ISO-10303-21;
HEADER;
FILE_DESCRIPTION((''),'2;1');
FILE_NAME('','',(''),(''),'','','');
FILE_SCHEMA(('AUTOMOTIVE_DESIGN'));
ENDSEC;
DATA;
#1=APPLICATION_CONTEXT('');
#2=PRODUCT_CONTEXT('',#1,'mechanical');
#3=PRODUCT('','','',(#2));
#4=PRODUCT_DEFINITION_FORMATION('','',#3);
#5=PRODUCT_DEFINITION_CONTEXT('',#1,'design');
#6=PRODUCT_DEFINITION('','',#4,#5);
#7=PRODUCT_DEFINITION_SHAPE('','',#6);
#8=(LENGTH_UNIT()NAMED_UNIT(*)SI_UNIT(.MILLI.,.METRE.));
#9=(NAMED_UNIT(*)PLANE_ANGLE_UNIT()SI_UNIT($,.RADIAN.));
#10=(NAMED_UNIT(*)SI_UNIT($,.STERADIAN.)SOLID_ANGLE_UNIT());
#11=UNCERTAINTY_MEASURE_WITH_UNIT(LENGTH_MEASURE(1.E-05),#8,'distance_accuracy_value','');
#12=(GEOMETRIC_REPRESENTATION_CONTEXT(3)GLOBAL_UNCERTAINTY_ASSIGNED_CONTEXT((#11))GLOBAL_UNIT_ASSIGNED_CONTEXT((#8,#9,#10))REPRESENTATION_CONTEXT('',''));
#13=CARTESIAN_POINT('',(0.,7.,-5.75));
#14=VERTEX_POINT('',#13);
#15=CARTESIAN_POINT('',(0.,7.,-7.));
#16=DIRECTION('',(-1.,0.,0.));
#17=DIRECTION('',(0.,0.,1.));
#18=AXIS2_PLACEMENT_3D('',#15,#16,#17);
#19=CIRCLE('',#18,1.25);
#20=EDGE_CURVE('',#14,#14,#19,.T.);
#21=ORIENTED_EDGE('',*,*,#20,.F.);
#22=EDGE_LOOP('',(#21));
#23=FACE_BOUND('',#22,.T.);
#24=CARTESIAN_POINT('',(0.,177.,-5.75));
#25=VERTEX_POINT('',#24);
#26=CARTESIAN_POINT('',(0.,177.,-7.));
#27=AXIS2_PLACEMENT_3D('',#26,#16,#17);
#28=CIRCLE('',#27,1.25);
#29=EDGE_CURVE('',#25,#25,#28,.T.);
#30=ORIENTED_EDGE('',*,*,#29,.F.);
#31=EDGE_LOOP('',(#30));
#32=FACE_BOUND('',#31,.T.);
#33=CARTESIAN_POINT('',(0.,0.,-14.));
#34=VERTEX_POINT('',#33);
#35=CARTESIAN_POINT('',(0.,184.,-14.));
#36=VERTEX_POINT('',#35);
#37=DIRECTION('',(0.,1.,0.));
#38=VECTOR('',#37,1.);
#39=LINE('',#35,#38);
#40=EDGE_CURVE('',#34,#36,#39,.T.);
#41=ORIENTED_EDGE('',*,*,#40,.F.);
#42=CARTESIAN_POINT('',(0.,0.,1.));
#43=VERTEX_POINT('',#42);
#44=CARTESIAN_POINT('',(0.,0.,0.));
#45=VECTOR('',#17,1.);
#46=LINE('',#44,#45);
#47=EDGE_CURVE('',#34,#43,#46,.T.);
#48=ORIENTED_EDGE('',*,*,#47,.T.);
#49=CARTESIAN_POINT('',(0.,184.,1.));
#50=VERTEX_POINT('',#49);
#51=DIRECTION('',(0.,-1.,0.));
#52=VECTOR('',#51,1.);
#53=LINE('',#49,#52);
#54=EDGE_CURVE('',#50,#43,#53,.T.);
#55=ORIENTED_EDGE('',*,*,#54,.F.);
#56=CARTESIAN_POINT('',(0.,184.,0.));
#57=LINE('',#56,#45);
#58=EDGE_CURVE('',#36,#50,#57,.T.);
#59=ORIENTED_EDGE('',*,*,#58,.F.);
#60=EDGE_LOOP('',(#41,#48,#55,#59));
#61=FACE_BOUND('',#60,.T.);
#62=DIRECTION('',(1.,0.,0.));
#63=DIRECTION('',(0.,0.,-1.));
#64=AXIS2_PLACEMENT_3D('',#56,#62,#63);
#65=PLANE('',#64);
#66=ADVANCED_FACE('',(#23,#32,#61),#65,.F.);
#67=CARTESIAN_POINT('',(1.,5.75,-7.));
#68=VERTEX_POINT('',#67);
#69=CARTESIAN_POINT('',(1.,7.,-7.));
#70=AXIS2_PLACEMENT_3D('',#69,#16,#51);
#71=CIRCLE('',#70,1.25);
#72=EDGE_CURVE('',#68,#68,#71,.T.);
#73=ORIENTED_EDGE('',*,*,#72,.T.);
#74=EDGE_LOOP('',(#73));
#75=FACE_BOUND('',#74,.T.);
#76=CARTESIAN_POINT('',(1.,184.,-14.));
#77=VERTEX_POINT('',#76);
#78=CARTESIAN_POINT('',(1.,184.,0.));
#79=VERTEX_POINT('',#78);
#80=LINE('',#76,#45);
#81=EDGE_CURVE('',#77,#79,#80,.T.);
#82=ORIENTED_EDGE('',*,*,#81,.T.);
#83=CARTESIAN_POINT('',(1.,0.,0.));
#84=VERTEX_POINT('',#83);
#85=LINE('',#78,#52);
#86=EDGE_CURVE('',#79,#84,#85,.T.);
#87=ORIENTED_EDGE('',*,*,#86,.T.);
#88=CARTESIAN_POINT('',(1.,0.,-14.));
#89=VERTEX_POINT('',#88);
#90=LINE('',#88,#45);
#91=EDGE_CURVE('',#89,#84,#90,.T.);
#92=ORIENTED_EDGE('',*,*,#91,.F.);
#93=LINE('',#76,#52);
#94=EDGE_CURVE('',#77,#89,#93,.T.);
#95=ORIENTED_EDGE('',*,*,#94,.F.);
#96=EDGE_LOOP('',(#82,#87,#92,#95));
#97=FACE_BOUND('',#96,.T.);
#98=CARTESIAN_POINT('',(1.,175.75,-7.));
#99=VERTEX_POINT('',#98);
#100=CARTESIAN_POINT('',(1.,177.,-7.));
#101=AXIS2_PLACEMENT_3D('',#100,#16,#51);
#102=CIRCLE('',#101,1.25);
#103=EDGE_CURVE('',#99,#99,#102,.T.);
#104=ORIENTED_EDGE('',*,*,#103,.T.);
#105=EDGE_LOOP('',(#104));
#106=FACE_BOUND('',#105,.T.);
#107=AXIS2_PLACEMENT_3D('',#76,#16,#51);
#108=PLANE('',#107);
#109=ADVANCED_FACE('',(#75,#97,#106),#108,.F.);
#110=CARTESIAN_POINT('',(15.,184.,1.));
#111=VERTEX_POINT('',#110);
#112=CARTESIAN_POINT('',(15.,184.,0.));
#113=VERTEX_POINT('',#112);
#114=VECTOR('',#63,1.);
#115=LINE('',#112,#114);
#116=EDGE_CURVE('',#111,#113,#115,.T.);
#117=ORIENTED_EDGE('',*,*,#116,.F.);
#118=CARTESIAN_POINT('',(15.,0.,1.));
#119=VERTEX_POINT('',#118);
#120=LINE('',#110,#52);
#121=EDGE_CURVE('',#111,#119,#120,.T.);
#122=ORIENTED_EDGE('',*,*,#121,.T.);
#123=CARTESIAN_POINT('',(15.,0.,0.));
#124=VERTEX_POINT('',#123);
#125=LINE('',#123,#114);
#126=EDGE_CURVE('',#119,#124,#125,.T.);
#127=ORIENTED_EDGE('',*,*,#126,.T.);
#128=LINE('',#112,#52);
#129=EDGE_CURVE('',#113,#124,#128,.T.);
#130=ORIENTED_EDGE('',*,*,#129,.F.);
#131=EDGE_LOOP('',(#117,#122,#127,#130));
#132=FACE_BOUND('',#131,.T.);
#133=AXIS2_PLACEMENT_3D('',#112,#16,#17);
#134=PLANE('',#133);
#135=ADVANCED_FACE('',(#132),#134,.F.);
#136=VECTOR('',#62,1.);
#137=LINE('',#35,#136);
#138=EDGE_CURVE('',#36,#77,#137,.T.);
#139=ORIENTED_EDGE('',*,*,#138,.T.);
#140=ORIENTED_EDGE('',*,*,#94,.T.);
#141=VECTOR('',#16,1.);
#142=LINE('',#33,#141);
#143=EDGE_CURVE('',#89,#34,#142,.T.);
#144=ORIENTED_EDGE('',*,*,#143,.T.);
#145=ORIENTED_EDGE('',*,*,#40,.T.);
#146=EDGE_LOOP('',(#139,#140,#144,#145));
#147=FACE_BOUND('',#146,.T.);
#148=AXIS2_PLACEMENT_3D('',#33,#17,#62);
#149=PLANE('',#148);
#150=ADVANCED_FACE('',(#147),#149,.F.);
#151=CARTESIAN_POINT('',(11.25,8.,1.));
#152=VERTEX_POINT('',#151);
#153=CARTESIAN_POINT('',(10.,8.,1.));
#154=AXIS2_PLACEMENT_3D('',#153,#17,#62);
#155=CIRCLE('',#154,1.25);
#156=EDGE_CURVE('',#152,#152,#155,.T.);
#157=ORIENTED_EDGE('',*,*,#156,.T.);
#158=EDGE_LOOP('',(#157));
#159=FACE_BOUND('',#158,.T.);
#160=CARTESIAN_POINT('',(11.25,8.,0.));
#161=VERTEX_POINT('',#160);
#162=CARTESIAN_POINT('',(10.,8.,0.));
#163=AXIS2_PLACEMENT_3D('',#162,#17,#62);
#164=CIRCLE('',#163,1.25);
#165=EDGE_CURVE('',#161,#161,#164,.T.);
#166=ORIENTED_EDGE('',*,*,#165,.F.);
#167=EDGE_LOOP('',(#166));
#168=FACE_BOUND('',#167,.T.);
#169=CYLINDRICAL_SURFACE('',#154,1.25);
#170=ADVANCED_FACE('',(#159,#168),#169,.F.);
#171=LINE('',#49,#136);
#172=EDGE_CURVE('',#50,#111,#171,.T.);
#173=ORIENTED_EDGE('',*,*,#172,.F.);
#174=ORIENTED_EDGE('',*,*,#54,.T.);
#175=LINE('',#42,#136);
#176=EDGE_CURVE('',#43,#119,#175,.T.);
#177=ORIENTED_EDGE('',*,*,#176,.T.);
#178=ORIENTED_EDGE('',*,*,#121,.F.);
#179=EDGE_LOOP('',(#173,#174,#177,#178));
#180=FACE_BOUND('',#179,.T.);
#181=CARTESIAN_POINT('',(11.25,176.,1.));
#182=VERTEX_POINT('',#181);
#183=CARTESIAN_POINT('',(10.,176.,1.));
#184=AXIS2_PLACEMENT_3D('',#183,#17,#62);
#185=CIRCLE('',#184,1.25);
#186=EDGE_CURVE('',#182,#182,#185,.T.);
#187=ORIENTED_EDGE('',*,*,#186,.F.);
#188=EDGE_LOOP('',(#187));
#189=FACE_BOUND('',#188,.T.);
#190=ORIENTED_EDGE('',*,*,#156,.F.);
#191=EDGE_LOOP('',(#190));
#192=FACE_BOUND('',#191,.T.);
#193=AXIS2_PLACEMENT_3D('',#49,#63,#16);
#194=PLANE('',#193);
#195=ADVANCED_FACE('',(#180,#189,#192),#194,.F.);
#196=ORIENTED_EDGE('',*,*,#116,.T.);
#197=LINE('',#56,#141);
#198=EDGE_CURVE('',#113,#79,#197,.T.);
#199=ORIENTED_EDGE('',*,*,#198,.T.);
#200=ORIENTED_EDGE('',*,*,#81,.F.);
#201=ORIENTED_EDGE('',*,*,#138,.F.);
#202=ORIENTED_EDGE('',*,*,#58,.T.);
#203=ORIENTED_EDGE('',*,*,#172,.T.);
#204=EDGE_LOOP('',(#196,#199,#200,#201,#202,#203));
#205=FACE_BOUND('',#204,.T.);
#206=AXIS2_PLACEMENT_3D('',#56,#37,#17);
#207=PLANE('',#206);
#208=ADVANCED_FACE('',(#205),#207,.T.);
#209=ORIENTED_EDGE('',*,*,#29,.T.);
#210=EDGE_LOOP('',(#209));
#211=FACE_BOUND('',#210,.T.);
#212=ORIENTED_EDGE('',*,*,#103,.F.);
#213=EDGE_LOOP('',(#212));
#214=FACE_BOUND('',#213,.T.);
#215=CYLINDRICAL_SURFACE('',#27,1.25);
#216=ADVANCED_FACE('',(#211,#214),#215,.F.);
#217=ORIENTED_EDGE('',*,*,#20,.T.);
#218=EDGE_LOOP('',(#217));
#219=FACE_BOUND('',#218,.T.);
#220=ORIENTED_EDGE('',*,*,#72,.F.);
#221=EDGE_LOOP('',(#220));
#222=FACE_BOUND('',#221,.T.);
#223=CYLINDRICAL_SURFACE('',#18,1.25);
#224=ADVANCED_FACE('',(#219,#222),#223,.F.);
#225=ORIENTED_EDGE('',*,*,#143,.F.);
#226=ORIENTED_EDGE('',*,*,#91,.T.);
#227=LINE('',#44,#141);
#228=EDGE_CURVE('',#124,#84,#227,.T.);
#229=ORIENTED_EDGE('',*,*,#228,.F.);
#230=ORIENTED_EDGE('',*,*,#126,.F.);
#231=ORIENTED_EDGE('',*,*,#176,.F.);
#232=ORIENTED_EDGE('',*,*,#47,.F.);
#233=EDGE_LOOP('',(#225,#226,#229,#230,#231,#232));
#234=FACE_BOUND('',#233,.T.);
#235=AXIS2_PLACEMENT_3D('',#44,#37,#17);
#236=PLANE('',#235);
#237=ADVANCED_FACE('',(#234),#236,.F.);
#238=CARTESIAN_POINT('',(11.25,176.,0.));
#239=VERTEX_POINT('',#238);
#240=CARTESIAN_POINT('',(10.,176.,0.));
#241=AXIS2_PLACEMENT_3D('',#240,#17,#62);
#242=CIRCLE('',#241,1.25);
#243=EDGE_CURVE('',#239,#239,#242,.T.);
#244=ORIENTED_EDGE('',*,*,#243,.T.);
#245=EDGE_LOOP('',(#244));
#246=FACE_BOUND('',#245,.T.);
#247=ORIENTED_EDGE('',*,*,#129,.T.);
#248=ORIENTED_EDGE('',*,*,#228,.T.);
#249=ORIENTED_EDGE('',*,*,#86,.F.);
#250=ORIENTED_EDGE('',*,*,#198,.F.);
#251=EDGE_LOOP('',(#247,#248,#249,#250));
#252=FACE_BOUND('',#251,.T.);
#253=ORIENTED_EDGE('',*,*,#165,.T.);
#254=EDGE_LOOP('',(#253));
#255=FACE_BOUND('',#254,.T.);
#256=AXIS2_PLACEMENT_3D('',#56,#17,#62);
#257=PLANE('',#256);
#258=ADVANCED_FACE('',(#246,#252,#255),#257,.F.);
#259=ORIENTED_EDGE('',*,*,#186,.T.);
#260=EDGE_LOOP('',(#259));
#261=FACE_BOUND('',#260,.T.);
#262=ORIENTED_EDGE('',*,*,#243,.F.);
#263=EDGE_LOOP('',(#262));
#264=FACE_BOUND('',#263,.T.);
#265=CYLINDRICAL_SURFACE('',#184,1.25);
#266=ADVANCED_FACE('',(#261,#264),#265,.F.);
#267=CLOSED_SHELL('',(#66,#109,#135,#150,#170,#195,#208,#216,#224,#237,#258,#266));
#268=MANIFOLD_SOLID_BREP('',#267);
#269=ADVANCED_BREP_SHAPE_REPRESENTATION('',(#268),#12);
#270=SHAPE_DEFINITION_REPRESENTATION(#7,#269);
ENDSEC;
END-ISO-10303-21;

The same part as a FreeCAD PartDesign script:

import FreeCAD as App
import Part
import Sketcher
from FreeCAD import Vector

doc = App.newDocument("Part")
body = doc.addObject("PartDesign::Body", "Body")

# Sketch on XZ plane
sketch1 = doc.addObject("Sketcher::SketchObject", "Sketch")
body.addObject(sketch1)
sketch1.AttachmentSupport = (doc.XZ_Plane, [""])
sketch1.MapMode = "FlatFace"
sketch1.addGeometry([
    Part.LineSegment(Vector(0, 0, 0), Vector(0, 1, 0)),
    Part.LineSegment(Vector(0, 1, 0), Vector(15, 1, 0)),
    Part.LineSegment(Vector(15, 1, 0), Vector(15, 0, 0)),
    Part.LineSegment(Vector(15, 0, 0), Vector(0, 0, 0)),
], False)
sketch1.addConstraint([
    Sketcher.Constraint("Coincident", 0, 2, 1, 1),
    Sketcher.Constraint("Coincident", 1, 2, 2, 1),
    Sketcher.Constraint("Coincident", 2, 2, 3, 1),
    Sketcher.Constraint("Coincident", 3, 2, 0, 1),
    Sketcher.Constraint("Vertical", 0),
    Sketcher.Constraint("Horizontal", 1),
    Sketcher.Constraint("Vertical", 2),
    Sketcher.Constraint("Horizontal", 3),
    Sketcher.Constraint("Coincident", 3, 2, -1, 1),
    Sketcher.Constraint("DistanceX", 1, 1, 1, 2, 15.0),
    Sketcher.Constraint("DistanceY", 0, 1, 0, 2, 1.0),
])
pad1 = doc.addObject("PartDesign::Pad", "Pad")
body.addObject(pad1)
pad1.Profile = sketch1
pad1.Length = 184
pad1.Reversed = True

# Sketch on XY plane
sketch2 = doc.addObject("Sketcher::SketchObject", "Sketch001")
body.addObject(sketch2)
sketch2.AttachmentSupport = (doc.XY_Plane, [""])
sketch2.MapMode = "FlatFace"
sketch2.addGeometry([
    Part.LineSegment(Vector(1, 184, 0), Vector(1, 0, 0)),
    Part.LineSegment(Vector(1, 0, 0), Vector(0, 0, 0)),
    Part.LineSegment(Vector(0, 0, 0), Vector(0, 184, 0)),
    Part.LineSegment(Vector(0, 184, 0), Vector(1, 184, 0)),
], False)
sketch2.addConstraint([
    Sketcher.Constraint("Coincident", 0, 2, 1, 1),
    Sketcher.Constraint("Coincident", 1, 2, 2, 1),
    Sketcher.Constraint("Coincident", 2, 2, 3, 1),
    Sketcher.Constraint("Coincident", 3, 2, 0, 1),
    Sketcher.Constraint("Vertical", 0),
    Sketcher.Constraint("Horizontal", 1),
    Sketcher.Constraint("Vertical", 2),
    Sketcher.Constraint("Horizontal", 3),
    Sketcher.Constraint("Coincident", 1, 2, -1, 1),
    Sketcher.Constraint("DistanceX", 1, 2, 1, 1, 1.0),
    Sketcher.Constraint("DistanceY", 0, 2, 0, 1, 184.0),
])
pad2 = doc.addObject("PartDesign::Pad", "Pad001")
body.addObject(pad2)
pad2.Profile = sketch2
pad2.Length = 14
pad2.Reversed = True

# Sketch on YZ plane
sketch3 = doc.addObject("Sketcher::SketchObject", "Sketch002")
body.addObject(sketch3)
sketch3.AttachmentSupport = (doc.YZ_Plane, [""])
sketch3.MapMode = "FlatFace"
sketch3.addGeometry([
    Part.Circle(Vector(7, -7, 0), Vector(0, 0, 1), 1.2),
    Part.Circle(Vector(177, -7, 0), Vector(0, 0, 1), 1.2),
], False)
sketch3.addConstraint([
    Sketcher.Constraint("Equal", 0, 1),
    Sketcher.Constraint("Horizontal", 0, 3, 1, 3),
    Sketcher.Constraint("Diameter", 0, 2.5),
    Sketcher.Constraint("DistanceX", -1, 1, 0, 3, 7.0),
    Sketcher.Constraint("DistanceY", 0, 3, -1, 1, 7.0),
    Sketcher.Constraint("DistanceX", -1, 1, 1, 3, 177.0),
])
doc.recompute()
hole = doc.addObject("PartDesign::Hole", "Hole")
body.addObject(hole)
hole.Profile = sketch3
hole.ThreadType = "None"
hole.Diameter = 2.5
hole.DepthType = "ThroughAll"
hole.Reversed = True

# Sketch on XY plane
sketch4 = doc.addObject("Sketcher::SketchObject", "Sketch003")
body.addObject(sketch4)
sketch4.AttachmentSupport = (doc.XY_Plane, [""])
sketch4.MapMode = "FlatFace"
sketch4.AttachmentOffset = App.Placement(Vector(0, 0, 1), App.Rotation())
sketch4.addGeometry([
    Part.Circle(Vector(10, 8, 0), Vector(0, 0, 1), 1.2),
    Part.Circle(Vector(10, 176, 0), Vector(0, 0, 1), 1.2),
], False)
sketch4.addConstraint([
    Sketcher.Constraint("Equal", 0, 1),
    Sketcher.Constraint("Vertical", 0, 3, 1, 3),
    Sketcher.Constraint("Diameter", 0, 2.5),
    Sketcher.Constraint("DistanceX", -1, 1, 0, 3, 10.0),
    Sketcher.Constraint("DistanceY", -1, 1, 0, 3, 8.0),
    Sketcher.Constraint("DistanceY", -1, 1, 1, 3, 176.0),
])
doc.recompute()
hole2 = doc.addObject("PartDesign::Hole", "Hole001")
body.addObject(hole2)
hole2.Profile = sketch4
hole2.ThreadType = "None"
hole2.Diameter = 2.5
hole2.DepthType = "ThroughAll"

doc.recompute()
